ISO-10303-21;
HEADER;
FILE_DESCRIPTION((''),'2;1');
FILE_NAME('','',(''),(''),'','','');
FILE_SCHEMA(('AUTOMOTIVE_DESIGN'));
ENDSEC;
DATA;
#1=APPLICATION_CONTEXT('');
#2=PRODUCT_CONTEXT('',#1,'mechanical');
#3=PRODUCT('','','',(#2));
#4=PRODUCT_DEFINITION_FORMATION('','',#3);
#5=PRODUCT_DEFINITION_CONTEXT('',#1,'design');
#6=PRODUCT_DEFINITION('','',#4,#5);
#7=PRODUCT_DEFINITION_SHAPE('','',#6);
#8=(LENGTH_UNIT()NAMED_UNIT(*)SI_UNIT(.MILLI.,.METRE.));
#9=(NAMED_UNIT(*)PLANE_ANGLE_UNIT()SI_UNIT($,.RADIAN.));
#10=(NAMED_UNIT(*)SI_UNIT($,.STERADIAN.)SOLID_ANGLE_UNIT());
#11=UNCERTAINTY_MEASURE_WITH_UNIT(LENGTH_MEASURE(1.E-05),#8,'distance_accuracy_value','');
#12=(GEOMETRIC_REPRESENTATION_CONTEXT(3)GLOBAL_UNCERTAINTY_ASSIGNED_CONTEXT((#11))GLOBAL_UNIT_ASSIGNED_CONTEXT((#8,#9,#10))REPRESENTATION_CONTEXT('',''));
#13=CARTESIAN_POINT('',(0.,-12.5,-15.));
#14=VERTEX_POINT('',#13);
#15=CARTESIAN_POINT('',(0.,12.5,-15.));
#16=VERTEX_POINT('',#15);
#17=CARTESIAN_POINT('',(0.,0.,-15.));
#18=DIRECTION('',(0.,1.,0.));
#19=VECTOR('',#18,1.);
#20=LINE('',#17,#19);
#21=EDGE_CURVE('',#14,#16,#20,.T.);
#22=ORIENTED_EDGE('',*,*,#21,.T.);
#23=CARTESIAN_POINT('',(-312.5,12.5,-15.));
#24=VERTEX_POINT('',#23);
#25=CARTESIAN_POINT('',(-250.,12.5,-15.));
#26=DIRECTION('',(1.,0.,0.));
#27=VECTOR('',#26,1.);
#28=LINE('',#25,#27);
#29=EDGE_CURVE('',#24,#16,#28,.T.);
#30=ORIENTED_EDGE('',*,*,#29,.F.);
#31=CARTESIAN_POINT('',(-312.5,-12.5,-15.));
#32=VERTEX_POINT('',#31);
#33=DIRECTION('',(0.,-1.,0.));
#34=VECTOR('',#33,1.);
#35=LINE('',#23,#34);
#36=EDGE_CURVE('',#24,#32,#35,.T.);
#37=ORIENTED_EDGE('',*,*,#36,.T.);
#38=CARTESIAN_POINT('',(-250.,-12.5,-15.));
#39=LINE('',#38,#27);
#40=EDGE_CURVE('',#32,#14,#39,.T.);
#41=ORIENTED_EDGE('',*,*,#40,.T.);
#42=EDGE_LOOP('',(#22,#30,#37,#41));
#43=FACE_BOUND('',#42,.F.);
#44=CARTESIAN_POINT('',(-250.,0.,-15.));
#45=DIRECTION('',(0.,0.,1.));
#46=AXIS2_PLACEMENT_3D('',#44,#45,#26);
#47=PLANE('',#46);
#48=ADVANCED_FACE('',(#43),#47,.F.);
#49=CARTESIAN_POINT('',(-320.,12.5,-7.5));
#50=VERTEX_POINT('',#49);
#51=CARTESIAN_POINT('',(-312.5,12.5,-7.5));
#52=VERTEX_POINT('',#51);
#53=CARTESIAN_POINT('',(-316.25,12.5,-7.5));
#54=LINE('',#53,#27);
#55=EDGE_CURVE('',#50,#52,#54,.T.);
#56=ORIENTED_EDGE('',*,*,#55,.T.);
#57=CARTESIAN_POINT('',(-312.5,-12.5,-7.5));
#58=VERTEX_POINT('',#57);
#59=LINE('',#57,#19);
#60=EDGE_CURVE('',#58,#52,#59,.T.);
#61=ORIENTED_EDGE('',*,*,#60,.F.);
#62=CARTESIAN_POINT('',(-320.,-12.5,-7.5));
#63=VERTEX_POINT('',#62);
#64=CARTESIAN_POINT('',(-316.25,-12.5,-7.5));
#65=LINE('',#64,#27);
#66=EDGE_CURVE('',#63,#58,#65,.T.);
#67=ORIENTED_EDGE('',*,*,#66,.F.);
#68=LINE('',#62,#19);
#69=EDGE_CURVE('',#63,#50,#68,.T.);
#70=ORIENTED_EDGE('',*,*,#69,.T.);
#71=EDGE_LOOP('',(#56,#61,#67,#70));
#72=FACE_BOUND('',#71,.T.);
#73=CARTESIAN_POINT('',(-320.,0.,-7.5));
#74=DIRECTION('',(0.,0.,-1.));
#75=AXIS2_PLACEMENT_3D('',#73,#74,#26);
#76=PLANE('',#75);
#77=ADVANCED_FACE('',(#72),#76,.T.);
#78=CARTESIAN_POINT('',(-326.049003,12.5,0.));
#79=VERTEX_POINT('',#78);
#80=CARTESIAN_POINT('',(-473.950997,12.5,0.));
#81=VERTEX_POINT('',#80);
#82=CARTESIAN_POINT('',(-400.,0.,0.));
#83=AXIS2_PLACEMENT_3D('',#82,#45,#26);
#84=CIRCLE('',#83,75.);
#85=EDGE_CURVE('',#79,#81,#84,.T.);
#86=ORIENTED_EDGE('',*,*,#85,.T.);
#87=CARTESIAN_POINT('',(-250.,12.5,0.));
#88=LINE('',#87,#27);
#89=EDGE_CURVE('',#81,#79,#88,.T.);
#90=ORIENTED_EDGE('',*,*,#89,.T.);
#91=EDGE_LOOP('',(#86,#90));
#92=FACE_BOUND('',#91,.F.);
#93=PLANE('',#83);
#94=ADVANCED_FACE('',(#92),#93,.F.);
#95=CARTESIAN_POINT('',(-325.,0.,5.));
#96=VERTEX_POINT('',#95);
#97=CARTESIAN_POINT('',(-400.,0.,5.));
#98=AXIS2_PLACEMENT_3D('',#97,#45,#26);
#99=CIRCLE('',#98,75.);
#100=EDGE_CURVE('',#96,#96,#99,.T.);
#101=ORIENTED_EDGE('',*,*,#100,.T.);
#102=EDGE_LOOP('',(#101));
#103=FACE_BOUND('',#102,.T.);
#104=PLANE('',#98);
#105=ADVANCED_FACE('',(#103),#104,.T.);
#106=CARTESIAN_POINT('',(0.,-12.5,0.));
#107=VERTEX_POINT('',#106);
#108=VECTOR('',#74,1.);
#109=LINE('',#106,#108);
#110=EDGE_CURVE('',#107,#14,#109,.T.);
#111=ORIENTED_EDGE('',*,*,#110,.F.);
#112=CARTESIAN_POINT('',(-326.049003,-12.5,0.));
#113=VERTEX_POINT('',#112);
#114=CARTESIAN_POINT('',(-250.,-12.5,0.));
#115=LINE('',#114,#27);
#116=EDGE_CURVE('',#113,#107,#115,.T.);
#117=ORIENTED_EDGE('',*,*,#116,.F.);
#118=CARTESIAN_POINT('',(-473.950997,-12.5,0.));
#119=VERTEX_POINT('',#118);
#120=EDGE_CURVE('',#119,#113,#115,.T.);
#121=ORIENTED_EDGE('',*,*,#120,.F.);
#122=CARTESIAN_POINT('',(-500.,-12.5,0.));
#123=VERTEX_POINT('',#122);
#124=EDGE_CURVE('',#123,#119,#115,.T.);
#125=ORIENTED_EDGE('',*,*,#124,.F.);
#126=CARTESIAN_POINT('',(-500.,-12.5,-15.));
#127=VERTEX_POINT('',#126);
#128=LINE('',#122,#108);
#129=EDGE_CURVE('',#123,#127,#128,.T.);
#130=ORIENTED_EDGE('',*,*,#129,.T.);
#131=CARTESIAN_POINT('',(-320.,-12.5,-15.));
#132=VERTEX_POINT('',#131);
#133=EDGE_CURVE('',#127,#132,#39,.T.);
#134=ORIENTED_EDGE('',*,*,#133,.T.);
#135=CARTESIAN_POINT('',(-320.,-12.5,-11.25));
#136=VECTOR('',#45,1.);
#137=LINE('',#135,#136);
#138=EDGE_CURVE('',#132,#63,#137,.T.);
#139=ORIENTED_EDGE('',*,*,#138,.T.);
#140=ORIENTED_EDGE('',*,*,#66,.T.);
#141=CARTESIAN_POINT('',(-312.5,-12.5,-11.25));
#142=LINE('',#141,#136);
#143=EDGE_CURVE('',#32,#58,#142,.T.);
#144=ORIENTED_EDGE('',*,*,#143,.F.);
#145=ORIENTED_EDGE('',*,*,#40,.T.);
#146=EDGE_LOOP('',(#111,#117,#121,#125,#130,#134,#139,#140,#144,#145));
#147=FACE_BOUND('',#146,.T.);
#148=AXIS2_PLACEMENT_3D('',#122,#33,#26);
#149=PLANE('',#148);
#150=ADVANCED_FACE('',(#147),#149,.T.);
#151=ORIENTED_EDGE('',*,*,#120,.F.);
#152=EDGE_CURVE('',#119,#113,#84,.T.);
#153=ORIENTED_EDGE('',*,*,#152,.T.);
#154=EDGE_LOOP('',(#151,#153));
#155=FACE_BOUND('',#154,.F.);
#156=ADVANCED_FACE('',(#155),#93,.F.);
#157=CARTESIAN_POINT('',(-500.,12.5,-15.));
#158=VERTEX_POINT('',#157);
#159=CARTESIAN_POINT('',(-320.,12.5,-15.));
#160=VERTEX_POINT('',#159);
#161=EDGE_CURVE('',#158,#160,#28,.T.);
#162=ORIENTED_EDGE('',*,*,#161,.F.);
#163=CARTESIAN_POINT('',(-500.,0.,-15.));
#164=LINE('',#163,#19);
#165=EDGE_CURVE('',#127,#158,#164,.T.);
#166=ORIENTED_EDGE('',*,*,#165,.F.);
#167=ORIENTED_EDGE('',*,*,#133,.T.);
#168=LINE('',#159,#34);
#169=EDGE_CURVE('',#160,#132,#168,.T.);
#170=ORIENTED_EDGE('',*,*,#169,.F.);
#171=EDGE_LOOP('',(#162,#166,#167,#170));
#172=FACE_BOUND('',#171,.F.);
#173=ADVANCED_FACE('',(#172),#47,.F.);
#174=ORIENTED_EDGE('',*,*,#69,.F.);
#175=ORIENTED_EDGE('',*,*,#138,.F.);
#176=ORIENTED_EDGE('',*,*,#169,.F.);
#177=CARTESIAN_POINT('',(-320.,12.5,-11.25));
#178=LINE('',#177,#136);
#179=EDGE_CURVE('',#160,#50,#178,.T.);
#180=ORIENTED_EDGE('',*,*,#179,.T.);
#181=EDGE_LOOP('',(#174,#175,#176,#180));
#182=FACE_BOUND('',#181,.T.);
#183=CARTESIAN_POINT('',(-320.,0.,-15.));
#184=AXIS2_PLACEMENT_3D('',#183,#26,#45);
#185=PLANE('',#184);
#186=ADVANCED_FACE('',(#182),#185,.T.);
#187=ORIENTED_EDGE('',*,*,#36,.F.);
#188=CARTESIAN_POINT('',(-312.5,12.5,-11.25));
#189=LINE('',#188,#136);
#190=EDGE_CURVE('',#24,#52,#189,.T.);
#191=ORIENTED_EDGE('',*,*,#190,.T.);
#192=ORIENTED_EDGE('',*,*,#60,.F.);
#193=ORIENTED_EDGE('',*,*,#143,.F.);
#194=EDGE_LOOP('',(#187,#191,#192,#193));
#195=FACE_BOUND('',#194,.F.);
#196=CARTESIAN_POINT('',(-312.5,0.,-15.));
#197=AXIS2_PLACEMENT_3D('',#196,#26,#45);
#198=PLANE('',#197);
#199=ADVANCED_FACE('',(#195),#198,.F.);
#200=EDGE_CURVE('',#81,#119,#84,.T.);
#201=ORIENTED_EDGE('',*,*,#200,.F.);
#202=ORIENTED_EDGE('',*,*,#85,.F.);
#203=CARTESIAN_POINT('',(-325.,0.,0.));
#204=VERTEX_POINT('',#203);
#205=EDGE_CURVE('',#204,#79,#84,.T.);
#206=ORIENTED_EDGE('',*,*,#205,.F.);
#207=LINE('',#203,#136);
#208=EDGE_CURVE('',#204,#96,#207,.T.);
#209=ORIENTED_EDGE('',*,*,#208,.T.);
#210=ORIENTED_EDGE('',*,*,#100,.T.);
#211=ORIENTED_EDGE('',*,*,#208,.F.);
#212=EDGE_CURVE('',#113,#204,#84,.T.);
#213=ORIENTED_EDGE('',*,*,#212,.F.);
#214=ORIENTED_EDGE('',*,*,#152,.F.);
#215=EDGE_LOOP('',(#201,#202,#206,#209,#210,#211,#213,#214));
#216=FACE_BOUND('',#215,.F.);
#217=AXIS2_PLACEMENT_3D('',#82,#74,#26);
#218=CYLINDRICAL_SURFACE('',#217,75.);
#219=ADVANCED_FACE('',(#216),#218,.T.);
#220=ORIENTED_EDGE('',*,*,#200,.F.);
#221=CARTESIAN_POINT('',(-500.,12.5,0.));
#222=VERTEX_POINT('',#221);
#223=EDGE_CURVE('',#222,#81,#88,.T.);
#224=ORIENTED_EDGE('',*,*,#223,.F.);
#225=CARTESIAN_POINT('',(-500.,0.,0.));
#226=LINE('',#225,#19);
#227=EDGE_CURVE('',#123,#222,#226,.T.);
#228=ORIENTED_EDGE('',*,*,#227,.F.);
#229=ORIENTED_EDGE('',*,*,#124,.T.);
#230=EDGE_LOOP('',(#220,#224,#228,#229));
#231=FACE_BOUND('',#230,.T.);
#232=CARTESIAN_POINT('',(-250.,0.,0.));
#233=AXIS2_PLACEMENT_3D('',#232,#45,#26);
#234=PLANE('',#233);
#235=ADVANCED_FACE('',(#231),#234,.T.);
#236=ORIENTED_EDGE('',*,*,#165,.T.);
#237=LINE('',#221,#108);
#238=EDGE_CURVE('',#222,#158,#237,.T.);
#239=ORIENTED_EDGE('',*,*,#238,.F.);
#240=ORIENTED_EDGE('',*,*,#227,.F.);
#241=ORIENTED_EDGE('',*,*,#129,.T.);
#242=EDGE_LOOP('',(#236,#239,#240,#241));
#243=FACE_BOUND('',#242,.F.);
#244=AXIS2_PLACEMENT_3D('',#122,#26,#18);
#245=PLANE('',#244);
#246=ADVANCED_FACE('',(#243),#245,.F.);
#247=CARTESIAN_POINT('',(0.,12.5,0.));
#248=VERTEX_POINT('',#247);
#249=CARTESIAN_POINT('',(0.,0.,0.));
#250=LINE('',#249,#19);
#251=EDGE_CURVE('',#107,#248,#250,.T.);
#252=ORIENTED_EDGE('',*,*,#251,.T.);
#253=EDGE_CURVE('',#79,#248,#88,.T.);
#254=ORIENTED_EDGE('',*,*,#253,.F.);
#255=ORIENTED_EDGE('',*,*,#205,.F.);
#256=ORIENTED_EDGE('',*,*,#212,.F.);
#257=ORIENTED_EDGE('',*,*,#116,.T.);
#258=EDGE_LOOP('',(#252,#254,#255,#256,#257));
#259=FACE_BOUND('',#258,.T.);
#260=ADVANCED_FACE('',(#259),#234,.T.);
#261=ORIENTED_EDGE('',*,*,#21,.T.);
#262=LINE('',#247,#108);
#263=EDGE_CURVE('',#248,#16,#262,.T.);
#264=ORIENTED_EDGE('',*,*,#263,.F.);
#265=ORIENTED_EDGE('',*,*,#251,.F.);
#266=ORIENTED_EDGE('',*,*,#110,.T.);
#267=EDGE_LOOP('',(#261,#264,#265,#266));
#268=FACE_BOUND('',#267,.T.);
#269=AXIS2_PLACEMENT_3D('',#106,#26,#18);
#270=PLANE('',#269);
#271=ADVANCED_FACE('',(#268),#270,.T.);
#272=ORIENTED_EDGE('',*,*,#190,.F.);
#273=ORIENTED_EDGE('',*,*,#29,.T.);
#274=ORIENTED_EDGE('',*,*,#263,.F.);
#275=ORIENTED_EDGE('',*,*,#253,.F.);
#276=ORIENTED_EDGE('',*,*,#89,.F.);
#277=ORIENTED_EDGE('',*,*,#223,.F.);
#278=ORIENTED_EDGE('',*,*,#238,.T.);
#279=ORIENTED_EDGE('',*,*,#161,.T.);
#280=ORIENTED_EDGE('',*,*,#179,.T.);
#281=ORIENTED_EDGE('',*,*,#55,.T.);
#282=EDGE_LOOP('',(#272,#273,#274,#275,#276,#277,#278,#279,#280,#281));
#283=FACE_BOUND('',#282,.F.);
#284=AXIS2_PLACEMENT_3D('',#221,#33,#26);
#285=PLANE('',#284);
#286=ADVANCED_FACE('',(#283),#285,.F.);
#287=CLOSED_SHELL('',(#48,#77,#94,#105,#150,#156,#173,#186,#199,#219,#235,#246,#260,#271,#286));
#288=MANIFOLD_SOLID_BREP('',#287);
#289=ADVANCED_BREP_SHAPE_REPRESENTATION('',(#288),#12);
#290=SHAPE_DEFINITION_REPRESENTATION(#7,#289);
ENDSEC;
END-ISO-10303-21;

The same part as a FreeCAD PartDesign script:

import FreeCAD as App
import Part
import Sketcher

V = App.Vector
Q = App.Units.Quantity


def add_polygon(sketch, points):
    """Adds a closed chain of lines whose ends are joined by coincident constraints."""
    first, n = sketch.GeometryCount, len(points)
    for a, b in zip(points, points[1:] + points[:1]):
        sketch.addGeometry(Part.LineSegment(App.Vector(*a, 0), App.Vector(*b, 0)), False)
    for i in range(n):
        sketch.addConstraint(Sketcher.Constraint("Coincident", first + i, 2, first + (i + 1) % n, 1))

doc = App.newDocument("Part")
params = doc.addObject("Spreadsheet::Sheet", "Params")
for row, (alias, value) in enumerate([
    ("sketch1_width", "500 mm"),
    ("sketch1_height", "25 mm"),
    ("pad1_length", "15 mm"),
    ("sketch2_diameter", "150 mm"),
    ("pad2_length", "5 mm"),
    ("sketch3_width", "7.5 mm"),
    ("pocket1_length", "25 mm"),
], start=1):
    params.set(f"A{row}", alias)
    params.set(f"B{row}", "=" + value)
    params.setAlias(f"B{row}", alias)

body = doc.addObject("PartDesign::Body", "Body")

# Sketch on XY plane
sketch1 = body.newObject("Sketcher::SketchObject", "Sketch")
sketch1.AttachmentSupport = (doc.getObject("XY_Plane"), [""])
sketch1.MapMode = "FlatFace"
add_polygon(sketch1, [(-500, 12), (-500, -12), (0, -12), (0, 12)])  # lines 0-3
sketch1.addConstraint([
    Sketcher.Constraint("Vertical", 0),
    Sketcher.Constraint("Horizontal", 1),
    Sketcher.Constraint("Vertical", 2),
    Sketcher.Constraint("Horizontal", 3),
    Sketcher.Constraint("Symmetric", 1, 2, 2, 2, -1, 1),
    Sketcher.Constraint("DistanceX", 1, 1, 1, 2, Q("500 mm")),
    Sketcher.Constraint("DistanceY", 0, 2, 0, 1, Q("25 mm")),
])
sketch1.setExpression("Constraints[9]", "Params.sketch1_width")
sketch1.setExpression("Constraints[10]", "Params.sketch1_height")
pad1 = body.newObject("PartDesign::Pad", "Pad")
pad1.Profile = sketch1
pad1.setExpression("Length", "Params.pad1_length")
pad1.Reversed = True

# Sketch on XY plane
sketch2 = body.newObject("Sketcher::SketchObject", "Sketch001")
sketch2.AttachmentSupport = (doc.getObject("XY_Plane"), [""])
sketch2.MapMode = "FlatFace"
sketch2.addGeometry(Part.Circle(V(-400, 0, 0), V(0, 0, 1), 75), False)
sketch2.addConstraint([
    Sketcher.Constraint("PointOnObject", 0, 3, -1),
    Sketcher.Constraint("Diameter", 0, Q("150 mm")),
    Sketcher.Constraint("DistanceX", 0, 3, -1, 1, Q("400 mm")),
])
sketch2.setExpression("Constraints[1]", "Params.sketch2_diameter")
pad2 = body.newObject("PartDesign::Pad", "Pad001")
pad2.Profile = sketch2
pad2.setExpression("Length", "Params.pad2_length")

# Sketch on XZ plane
sketch3 = body.newObject("Sketcher::SketchObject", "Sketch002")
sketch3.AttachmentSupport = (doc.getObject("XZ_Plane"), [""])
sketch3.MapMode = "FlatFace"
add_polygon(sketch3, [(-320, -8), (-320, -15), (-312, -15), (-312, -8)])  # lines 0-3
sketch3.addConstraint([
    Sketcher.Constraint("Vertical", 0),
    Sketcher.Constraint("Horizontal", 1),
    Sketcher.Constraint("Vertical", 2),
    Sketcher.Constraint("Horizontal", 3),
    Sketcher.Constraint("Equal", 3, 0),
    Sketcher.Constraint("DistanceX", 1, 1, 1, 2, Q("7.5 mm")),
    Sketcher.Constraint("DistanceX", 0, 2, -1, 1, Q("320 mm")),
    Sketcher.Constraint("DistanceY", 0, 2, -1, 1, Q("15 mm")),
])
sketch3.setExpression("Constraints[9]", "Params.sketch3_width")
pocket1 = body.newObject("PartDesign::Pocket", "Pocket")
pocket1.Profile = sketch3
pocket1.setExpression("Length", "Params.pocket1_length")
pocket1.Midplane = True

doc.recompute()
